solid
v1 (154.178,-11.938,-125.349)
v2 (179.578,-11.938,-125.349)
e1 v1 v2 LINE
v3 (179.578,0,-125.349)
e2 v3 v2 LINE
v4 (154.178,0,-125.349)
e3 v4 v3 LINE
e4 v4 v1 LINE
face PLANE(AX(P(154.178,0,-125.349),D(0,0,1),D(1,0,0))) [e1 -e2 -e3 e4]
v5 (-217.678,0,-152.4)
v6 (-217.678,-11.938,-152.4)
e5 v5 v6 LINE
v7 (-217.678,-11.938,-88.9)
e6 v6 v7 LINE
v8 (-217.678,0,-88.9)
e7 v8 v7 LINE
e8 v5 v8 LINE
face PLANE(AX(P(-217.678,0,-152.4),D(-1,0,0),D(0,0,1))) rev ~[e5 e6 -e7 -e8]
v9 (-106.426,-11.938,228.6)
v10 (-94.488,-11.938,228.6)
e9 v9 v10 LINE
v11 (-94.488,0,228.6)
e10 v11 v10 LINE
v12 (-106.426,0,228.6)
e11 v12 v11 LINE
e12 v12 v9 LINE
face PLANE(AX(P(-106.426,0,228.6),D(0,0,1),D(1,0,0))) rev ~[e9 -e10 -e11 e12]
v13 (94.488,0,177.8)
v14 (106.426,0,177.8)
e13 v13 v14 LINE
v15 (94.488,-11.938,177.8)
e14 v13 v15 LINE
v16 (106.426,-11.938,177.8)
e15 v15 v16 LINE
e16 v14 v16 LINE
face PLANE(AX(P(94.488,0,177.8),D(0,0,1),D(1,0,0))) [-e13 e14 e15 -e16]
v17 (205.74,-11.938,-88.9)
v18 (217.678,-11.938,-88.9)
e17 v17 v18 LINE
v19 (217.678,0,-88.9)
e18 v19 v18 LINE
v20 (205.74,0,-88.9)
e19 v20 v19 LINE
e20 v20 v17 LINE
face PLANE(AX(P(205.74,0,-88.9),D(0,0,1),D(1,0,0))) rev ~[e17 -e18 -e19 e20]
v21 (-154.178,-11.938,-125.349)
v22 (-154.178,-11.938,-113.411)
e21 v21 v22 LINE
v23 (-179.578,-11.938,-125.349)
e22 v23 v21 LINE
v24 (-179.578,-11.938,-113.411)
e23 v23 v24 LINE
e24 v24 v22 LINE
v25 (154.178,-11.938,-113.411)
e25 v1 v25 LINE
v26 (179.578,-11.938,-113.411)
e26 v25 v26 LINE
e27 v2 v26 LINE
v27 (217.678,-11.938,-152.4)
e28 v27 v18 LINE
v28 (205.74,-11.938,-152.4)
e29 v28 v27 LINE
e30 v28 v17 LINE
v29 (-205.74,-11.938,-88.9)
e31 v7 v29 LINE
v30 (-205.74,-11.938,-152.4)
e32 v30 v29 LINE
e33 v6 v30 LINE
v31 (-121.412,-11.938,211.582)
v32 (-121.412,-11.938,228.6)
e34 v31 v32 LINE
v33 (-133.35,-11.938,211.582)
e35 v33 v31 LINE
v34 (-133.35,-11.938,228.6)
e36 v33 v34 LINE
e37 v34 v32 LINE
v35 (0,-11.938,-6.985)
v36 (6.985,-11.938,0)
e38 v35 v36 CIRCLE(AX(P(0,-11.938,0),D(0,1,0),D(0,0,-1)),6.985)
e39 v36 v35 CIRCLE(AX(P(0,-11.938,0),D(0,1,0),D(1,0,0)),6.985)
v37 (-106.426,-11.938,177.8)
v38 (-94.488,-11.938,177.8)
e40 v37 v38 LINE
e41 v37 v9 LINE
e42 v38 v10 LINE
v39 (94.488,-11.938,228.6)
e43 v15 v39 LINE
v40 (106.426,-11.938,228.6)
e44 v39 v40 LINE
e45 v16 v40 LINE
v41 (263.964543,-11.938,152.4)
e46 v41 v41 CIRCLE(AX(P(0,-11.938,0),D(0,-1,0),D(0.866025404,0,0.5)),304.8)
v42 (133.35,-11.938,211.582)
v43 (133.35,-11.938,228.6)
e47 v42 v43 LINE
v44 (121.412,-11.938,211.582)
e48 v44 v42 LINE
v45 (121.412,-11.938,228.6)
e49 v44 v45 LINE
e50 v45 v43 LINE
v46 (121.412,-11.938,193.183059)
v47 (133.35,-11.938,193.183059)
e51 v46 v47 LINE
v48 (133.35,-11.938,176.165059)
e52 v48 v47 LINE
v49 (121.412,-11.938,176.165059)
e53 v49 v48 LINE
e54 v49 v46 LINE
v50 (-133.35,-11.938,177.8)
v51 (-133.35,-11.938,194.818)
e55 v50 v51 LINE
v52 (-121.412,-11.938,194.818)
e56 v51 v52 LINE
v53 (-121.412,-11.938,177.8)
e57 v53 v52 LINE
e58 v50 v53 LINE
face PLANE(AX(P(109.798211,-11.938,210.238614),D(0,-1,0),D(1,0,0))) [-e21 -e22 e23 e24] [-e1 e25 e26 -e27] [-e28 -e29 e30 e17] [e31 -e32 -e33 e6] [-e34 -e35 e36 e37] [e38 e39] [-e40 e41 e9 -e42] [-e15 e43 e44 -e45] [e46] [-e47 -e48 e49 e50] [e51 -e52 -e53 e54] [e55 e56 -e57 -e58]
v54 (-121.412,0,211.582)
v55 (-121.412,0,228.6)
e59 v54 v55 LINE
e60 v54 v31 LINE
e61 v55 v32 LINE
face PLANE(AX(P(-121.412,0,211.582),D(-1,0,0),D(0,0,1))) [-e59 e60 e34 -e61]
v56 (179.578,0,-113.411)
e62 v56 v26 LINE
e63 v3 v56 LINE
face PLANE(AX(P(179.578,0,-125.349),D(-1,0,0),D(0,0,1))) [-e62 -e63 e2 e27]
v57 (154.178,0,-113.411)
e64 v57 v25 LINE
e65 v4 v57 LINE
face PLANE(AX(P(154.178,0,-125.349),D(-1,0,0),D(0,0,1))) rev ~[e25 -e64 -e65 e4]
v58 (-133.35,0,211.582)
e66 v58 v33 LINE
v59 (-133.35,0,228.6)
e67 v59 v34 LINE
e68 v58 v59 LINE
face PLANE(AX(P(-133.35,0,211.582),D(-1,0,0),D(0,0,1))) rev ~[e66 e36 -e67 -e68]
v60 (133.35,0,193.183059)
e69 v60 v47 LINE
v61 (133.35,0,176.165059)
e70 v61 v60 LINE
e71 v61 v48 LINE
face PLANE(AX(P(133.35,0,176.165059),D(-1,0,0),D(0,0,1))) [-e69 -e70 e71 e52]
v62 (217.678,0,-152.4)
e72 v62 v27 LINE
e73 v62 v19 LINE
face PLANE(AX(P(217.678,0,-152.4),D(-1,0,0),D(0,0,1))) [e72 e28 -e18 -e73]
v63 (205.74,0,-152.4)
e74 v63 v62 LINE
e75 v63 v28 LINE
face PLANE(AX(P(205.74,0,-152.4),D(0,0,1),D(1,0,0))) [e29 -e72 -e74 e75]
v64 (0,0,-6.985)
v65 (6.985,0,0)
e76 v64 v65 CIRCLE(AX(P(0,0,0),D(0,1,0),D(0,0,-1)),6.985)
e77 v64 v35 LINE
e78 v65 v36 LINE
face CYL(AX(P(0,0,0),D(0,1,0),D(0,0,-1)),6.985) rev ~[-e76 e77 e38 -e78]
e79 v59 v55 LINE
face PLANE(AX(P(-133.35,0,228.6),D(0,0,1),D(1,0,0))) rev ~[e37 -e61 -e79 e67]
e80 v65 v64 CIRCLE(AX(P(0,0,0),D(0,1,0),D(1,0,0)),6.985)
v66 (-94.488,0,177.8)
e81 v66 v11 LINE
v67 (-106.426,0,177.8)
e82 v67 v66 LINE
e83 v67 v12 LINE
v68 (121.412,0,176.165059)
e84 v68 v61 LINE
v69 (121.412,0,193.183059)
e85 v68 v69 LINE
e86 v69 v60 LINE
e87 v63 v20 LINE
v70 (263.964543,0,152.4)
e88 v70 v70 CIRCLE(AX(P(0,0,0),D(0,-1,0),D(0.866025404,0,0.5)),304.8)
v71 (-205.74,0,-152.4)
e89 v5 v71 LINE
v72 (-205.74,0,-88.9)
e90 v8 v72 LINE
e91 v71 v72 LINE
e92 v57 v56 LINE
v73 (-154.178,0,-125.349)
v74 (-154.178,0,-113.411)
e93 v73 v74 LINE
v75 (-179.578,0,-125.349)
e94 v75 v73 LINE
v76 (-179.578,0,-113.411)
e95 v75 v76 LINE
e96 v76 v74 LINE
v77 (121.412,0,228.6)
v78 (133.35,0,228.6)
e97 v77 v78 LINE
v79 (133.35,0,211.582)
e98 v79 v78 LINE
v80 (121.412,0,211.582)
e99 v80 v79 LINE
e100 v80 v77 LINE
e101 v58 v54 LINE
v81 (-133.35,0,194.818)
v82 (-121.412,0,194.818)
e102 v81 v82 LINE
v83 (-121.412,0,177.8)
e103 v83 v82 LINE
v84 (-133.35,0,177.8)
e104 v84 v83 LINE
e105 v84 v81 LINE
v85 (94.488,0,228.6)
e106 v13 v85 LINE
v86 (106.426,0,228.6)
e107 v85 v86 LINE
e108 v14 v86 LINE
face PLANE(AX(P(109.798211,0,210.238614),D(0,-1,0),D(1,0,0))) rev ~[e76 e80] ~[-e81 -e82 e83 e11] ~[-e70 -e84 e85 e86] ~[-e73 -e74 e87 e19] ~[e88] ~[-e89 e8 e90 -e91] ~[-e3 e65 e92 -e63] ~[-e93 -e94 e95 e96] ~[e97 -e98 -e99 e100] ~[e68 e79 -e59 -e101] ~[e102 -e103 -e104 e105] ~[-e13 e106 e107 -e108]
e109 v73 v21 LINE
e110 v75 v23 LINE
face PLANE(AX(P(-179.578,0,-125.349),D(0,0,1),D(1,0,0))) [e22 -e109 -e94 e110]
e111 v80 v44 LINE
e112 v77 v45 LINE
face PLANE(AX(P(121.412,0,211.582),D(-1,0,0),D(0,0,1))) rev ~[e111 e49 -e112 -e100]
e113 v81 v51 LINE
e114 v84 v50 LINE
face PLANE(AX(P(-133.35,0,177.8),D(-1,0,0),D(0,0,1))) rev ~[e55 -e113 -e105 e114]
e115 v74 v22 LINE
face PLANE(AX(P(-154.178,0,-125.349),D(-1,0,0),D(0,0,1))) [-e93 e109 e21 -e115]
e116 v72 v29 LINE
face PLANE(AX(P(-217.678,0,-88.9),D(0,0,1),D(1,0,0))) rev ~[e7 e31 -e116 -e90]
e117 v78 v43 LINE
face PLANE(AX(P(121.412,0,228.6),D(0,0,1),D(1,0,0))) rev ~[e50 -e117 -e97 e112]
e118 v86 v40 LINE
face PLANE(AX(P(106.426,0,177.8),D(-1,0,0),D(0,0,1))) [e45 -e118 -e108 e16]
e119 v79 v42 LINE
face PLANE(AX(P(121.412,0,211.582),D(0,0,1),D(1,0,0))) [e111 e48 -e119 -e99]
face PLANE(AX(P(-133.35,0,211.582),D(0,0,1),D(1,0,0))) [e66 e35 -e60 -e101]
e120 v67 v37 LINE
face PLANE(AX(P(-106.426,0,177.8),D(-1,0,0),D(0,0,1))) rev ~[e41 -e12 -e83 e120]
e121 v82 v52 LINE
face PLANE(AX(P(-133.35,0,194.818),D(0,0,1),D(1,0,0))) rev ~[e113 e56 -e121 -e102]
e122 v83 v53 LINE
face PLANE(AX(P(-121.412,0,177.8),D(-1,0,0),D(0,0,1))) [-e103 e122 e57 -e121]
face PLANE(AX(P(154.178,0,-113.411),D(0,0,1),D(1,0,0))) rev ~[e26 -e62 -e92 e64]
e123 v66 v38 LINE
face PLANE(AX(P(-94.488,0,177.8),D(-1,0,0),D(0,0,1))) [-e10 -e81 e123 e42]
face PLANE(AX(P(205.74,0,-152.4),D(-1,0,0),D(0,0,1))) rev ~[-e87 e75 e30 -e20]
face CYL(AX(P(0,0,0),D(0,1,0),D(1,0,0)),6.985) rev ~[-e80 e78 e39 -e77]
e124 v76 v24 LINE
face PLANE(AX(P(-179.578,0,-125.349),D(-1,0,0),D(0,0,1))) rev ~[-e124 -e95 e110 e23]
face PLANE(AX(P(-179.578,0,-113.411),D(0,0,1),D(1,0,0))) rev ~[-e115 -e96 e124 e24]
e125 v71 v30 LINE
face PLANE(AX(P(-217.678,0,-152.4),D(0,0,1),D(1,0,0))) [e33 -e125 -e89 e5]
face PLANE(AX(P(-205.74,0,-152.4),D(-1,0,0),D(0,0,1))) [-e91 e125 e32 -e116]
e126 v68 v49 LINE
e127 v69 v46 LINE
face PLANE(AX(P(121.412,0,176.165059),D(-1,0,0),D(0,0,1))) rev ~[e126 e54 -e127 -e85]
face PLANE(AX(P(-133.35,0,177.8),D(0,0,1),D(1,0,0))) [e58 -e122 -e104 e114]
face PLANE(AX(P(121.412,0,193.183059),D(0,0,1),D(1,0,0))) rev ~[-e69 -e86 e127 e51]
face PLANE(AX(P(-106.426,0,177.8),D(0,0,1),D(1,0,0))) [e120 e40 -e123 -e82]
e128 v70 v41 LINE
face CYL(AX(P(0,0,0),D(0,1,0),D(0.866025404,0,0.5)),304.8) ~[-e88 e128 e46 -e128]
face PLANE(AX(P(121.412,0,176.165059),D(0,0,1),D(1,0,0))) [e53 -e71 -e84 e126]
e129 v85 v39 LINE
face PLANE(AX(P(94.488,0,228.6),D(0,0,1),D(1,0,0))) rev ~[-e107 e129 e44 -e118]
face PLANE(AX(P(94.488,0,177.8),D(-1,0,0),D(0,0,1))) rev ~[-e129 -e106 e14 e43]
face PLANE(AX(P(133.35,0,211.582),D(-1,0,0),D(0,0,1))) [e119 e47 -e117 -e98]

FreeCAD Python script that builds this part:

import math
import FreeCAD as App
import Part
import Sketcher
Q = App.Units.Quantity

doc = App.newDocument("Part")
body = doc.addObject("PartDesign::Body", "Body")

# Sketch on XZ plane
sketch1 = body.newObject("Sketcher::SketchObject", "Sketch")
sketch1.AttachmentSupport = (doc.getObject("XZ_Plane"), [""])
sketch1.MapMode = "FlatFace"
sketch1.addGeometry([
    Part.Circle(App.Vector(0, 0, 0), App.Vector(0, 0, 1), 304.8),  # 0
    Part.LineSegment(App.Vector(-205.74, -152.4, 0), App.Vector(-217.678, -152.4, 0)),  # 1
    Part.LineSegment(App.Vector(-217.678, -152.4, 0), App.Vector(-217.678, -88.9, 0)),  # 2
    Part.LineSegment(App.Vector(-217.678, -88.9, 0), App.Vector(-205.74, -88.9, 0)),  # 3
    Part.LineSegment(App.Vector(-205.74, -88.9, 0), App.Vector(-205.74, -152.4, 0)),  # 4
    Part.LineSegment(App.Vector(-154.178, -125.349, 0), App.Vector(-179.578, -125.349, 0)),  # 5
    Part.LineSegment(App.Vector(-179.578, -125.349, 0), App.Vector(-179.578, -113.411, 0)),  # 6
    Part.LineSegment(App.Vector(-179.578, -113.411, 0), App.Vector(-154.178, -113.411, 0)),  # 7
    Part.LineSegment(App.Vector(-154.178, -113.411, 0), App.Vector(-154.178, -125.349, 0)),  # 8
    Part.ArcOfCircle(Part.Circle(App.Vector(0, 0, 0), App.Vector(0, 0, 1), 6.985), math.radians(-90), math.radians(0)),  # 9
    Part.ArcOfCircle(Part.Circle(App.Vector(0, 0, 0), App.Vector(0, 0, 1), 6.985), math.radians(0), math.radians(270)),  # 10
    Part.LineSegment(App.Vector(179.578, -125.349, 0), App.Vector(154.178, -125.349, 0)),  # 11
    Part.LineSegment(App.Vector(154.178, -125.349, 0), App.Vector(154.178, -113.411, 0)),  # 12
    Part.LineSegment(App.Vector(154.178, -113.411, 0), App.Vector(179.578, -113.411, 0)),  # 13
    Part.LineSegment(App.Vector(179.578, -113.411, 0), App.Vector(179.578, -125.349, 0)),  # 14
    Part.LineSegment(App.Vector(217.678, -152.4, 0), App.Vector(205.74, -152.4, 0)),  # 15
    Part.LineSegment(App.Vector(205.74, -152.4, 0), App.Vector(205.74, -88.9, 0)),  # 16
    Part.LineSegment(App.Vector(205.74, -88.9, 0), App.Vector(217.678, -88.9, 0)),  # 17
    Part.LineSegment(App.Vector(217.678, -88.9, 0), App.Vector(217.678, -152.4, 0)),  # 18
    Part.LineSegment(App.Vector(-121.412, 177.8, 0), App.Vector(-133.35, 177.8, 0)),  # 19
    Part.LineSegment(App.Vector(-133.35, 177.8, 0), App.Vector(-133.35, 194.818, 0)),  # 20
    Part.LineSegment(App.Vector(-133.35, 194.818, 0), App.Vector(-121.412, 194.818, 0)),  # 21
    Part.LineSegment(App.Vector(-121.412, 194.818, 0), App.Vector(-121.412, 177.8, 0)),  # 22
    Part.LineSegment(App.Vector(-121.412, 211.582, 0), App.Vector(-133.35, 211.582, 0)),  # 23
    Part.LineSegment(App.Vector(-133.35, 211.582, 0), App.Vector(-133.35, 228.6, 0)),  # 24
    Part.LineSegment(App.Vector(-133.35, 228.6, 0), App.Vector(-121.412, 228.6, 0)),  # 25
    Part.LineSegment(App.Vector(-121.412, 228.6, 0), App.Vector(-121.412, 211.582, 0)),  # 26
    Part.LineSegment(App.Vector(-94.488, 177.8, 0), App.Vector(-106.426, 177.8, 0)),  # 27
    Part.LineSegment(App.Vector(-106.426, 177.8, 0), App.Vector(-106.426, 228.6, 0)),  # 28
    Part.LineSegment(App.Vector(-106.426, 228.6, 0), App.Vector(-94.488, 228.6, 0)),  # 29
    Part.LineSegment(App.Vector(-94.488, 228.6, 0), App.Vector(-94.488, 177.8, 0)),  # 30
    Part.LineSegment(App.Vector(106.426, 177.8, 0), App.Vector(94.488, 177.8, 0)),  # 31
    Part.LineSegment(App.Vector(94.488, 177.8, 0), App.Vector(94.488, 228.6, 0)),  # 32
    Part.LineSegment(App.Vector(94.488, 228.6, 0), App.Vector(106.426, 228.6, 0)),  # 33
    Part.LineSegment(App.Vector(106.426, 228.6, 0), App.Vector(106.426, 177.8, 0)),  # 34
    Part.LineSegment(App.Vector(133.35, 176.165059, 0), App.Vector(121.412, 176.165059, 0)),  # 35
    Part.LineSegment(App.Vector(121.412, 176.165059, 0), App.Vector(121.412, 193.183059, 0)),  # 36
    Part.LineSegment(App.Vector(121.412, 193.183059, 0), App.Vector(133.35, 193.183059, 0)),  # 37
    Part.LineSegment(App.Vector(133.35, 193.183059, 0), App.Vector(133.35, 176.165059, 0)),  # 38
    Part.LineSegment(App.Vector(121.412, 228.6, 0), App.Vector(133.35, 228.6, 0)),  # 39
    Part.LineSegment(App.Vector(133.35, 228.6, 0), App.Vector(133.35, 211.582, 0)),  # 40
    Part.LineSegment(App.Vector(133.35, 211.582, 0), App.Vector(121.412, 211.582, 0)),  # 41
    Part.LineSegment(App.Vector(121.412, 211.582, 0), App.Vector(121.412, 228.6, 0)),  # 42
], False)
sketch1.addConstraint([
    Sketcher.Constraint("Coincident", 1, 2, 2, 1),
    Sketcher.Constraint("Coincident", 2, 2, 3, 1),
    Sketcher.Constraint("Coincident", 3, 2, 4, 1),
    Sketcher.Constraint("Coincident", 4, 2, 1, 1),
    Sketcher.Constraint("Coincident", 5, 2, 6, 1),
    Sketcher.Constraint("Coincident", 6, 2, 7, 1),
    Sketcher.Constraint("Coincident", 7, 2, 8, 1),
    Sketcher.Constraint("Coincident", 8, 2, 5, 1),
    Sketcher.Constraint("Tangent", 9, 1, 10, 2),
    Sketcher.Constraint("Coincident", 10, 1, 9, 2),
    Sketcher.Constraint("Coincident", 11, 2, 12, 1),
    Sketcher.Constraint("Coincident", 12, 2, 13, 1),
    Sketcher.Constraint("Coincident", 13, 2, 14, 1),
    Sketcher.Constraint("Coincident", 14, 2, 11, 1),
    Sketcher.Constraint("Coincident", 15, 2, 16, 1),
    Sketcher.Constraint("Coincident", 16, 2, 17, 1),
    Sketcher.Constraint("Coincident", 17, 2, 18, 1),
    Sketcher.Constraint("Coincident", 18, 2, 15, 1),
    Sketcher.Constraint("Coincident", 19, 2, 20, 1),
    Sketcher.Constraint("Coincident", 20, 2, 21, 1),
    Sketcher.Constraint("Coincident", 21, 2, 22, 1),
    Sketcher.Constraint("Coincident", 22, 2, 19, 1),
    Sketcher.Constraint("Coincident", 23, 2, 24, 1),
    Sketcher.Constraint("Coincident", 24, 2, 25, 1),
    Sketcher.Constraint("Coincident", 25, 2, 26, 1),
    Sketcher.Constraint("Coincident", 26, 2, 23, 1),
    Sketcher.Constraint("Coincident", 27, 2, 28, 1),
    Sketcher.Constraint("Coincident", 28, 2, 29, 1),
    Sketcher.Constraint("Coincident", 29, 2, 30, 1),
    Sketcher.Constraint("Coincident", 30, 2, 27, 1),
    Sketcher.Constraint("Coincident", 31, 2, 32, 1),
    Sketcher.Constraint("Coincident", 32, 2, 33, 1),
    Sketcher.Constraint("Coincident", 33, 2, 34, 1),
    Sketcher.Constraint("Coincident", 34, 2, 31, 1),
    Sketcher.Constraint("Coincident", 35, 2, 36, 1),
    Sketcher.Constraint("Coincident", 36, 2, 37, 1),
    Sketcher.Constraint("Coincident", 37, 2, 38, 1),
    Sketcher.Constraint("Coincident", 38, 2, 35, 1),
    Sketcher.Constraint("Coincident", 39, 2, 40, 1),
    Sketcher.Constraint("Coincident", 40, 2, 41, 1),
    Sketcher.Constraint("Coincident", 41, 2, 42, 1),
    Sketcher.Constraint("Coincident", 42, 2, 39, 1),
    Sketcher.Constraint("Horizontal", 1),
    Sketcher.Constraint("Vertical", 2),
    Sketcher.Constraint("Horizontal", 3),
    Sketcher.Constraint("Vertical", 4),
    Sketcher.Constraint("Horizontal", 5),
    Sketcher.Constraint("Vertical", 6),
    Sketcher.Constraint("Horizontal", 7),
    Sketcher.Constraint("Vertical", 8),
    Sketcher.Constraint("Horizontal", 11),
    Sketcher.Constraint("Vertical", 12),
    Sketcher.Constraint("Horizontal", 13),
    Sketcher.Constraint("Vertical", 14),
    Sketcher.Constraint("Horizontal", 15),
    Sketcher.Constraint("Vertical", 16),
    Sketcher.Constraint("Horizontal", 17),
    Sketcher.Constraint("Vertical", 18),
    Sketcher.Constraint("Horizontal", 19),
    Sketcher.Constraint("Vertical", 20),
    Sketcher.Constraint("Horizontal", 21),
    Sketcher.Constraint("Vertical", 22),
    Sketcher.Constraint("Horizontal", 23),
    Sketcher.Constraint("Vertical", 24),
    Sketcher.Constraint("Horizontal", 25),
    Sketcher.Constraint("Vertical", 26),
    Sketcher.Constraint("Horizontal", 27),
    Sketcher.Constraint("Vertical", 28),
    Sketcher.Constraint("Horizontal", 29),
    Sketcher.Constraint("Vertical", 30),
    Sketcher.Constraint("Horizontal", 31),
    Sketcher.Constraint("Vertical", 32),
    Sketcher.Constraint("Horizontal", 33),
    Sketcher.Constraint("Vertical", 34),
    Sketcher.Constraint("Horizontal", 35),
    Sketcher.Constraint("Vertical", 36),
    Sketcher.Constraint("Horizontal", 37),
    Sketcher.Constraint("Vertical", 38),
    Sketcher.Constraint("Horizontal", 39),
    Sketcher.Constraint("Vertical", 40),
    Sketcher.Constraint("Horizontal", 41),
    Sketcher.Constraint("Vertical", 42),
    Sketcher.Constraint("Coincident", 0, 3, -1, 1),
    Sketcher.Constraint("Coincident", 9, 3, -1, 1),
    Sketcher.Constraint("Symmetric", 8, 2, 11, 2, -2),
    Sketcher.Constraint("Symmetric", 6, 2, 13, 2, -2),
    Sketcher.Constraint("Symmetric", 4, 2, 15, 2, -2),
    Sketcher.Constraint("Symmetric", 2, 2, 17, 2, -2),
    Sketcher.Constraint("Symmetric", 30, 2, 31, 2, -2),
    Sketcher.Constraint("Symmetric", 28, 2, 33, 2, -2),
    Sketcher.Constraint("Symmetric", 24, 2, 39, 2, -2),
    Sketcher.Constraint("Symmetric", 26, 2, 41, 2, -2),
    Sketcher.Constraint("PointOnObject", 9, 1, -2),
    Sketcher.Constraint("PointOnObject", 10, 1, -1),
    Sketcher.Constraint("Horizontal", 22, 2, 27, 2),
    Sketcher.Constraint("Horizontal", 25, 2, 28, 2),
    Sketcher.Constraint("Vertical", 20, 2, 23, 2),
    Sketcher.Constraint("Vertical", 22, 2, 25, 2),
    Sketcher.Constraint("Vertical", 38, 2, 39, 2),
    Sketcher.Constraint("Vertical", 36, 2, 41, 2),
    Sketcher.Constraint("Equal", 17, 19),
    Sketcher.Constraint("Equal", 25, 27),
    Sketcher.Constraint("Equal", 41, 6),
    Sketcher.Constraint("Equal", 22, 24),
    Sketcher.Constraint("Equal", 26, 36),
    Sketcher.Constraint("Diameter", 0, Q("24 in")),
    Sketcher.Constraint("DistanceX", 5, 2, 5, 1, Q("1 in")),
    Sketcher.Constraint("DistanceY", 28, 1, 28, 2, Q("2 in")),
    Sketcher.Constraint("DistanceY", 2, 1, 2, 2, Q("2.5 in")),
    Sketcher.Constraint("DistanceY", 1, 2, -1, 1, Q("6 in")),
    Sketcher.Constraint("DistanceY", -1, 1, 19, 2, Q("7 in")),
    Sketcher.Constraint("Radius", 9, Q("0.275 in")),
    Sketcher.Constraint("DistanceX", 1, 2, 1, 1, Q("0.47 in")),
    Sketcher.Constraint("DistanceY", 20, 1, 20, 2, Q("0.67 in")),
    Sketcher.Constraint("DistanceX", 3, 2, -1, 1, Q("8.1 in")),
    Sketcher.Constraint("DistanceX", 1, 2, 5, 2, Q("1.5 in")),
    Sketcher.Constraint("DistanceX", 19, 2, -1, 1, Q("5.25 in")),
    Sketcher.Constraint("DistanceX", 27, 2, -1, 1, Q("4.19 in")),
    Sketcher.Constraint("DistanceY", 7, 2, 9, 1, Q("4.19 in")),
    Sketcher.Constraint("DistanceY", -1, 1, 35, 2, 176.165059),
])
pad1 = body.newObject("PartDesign::Pad", "Pad")
pad1.Profile = sketch1
pad1.Length = Q("0.47 in")

doc.recompute()
